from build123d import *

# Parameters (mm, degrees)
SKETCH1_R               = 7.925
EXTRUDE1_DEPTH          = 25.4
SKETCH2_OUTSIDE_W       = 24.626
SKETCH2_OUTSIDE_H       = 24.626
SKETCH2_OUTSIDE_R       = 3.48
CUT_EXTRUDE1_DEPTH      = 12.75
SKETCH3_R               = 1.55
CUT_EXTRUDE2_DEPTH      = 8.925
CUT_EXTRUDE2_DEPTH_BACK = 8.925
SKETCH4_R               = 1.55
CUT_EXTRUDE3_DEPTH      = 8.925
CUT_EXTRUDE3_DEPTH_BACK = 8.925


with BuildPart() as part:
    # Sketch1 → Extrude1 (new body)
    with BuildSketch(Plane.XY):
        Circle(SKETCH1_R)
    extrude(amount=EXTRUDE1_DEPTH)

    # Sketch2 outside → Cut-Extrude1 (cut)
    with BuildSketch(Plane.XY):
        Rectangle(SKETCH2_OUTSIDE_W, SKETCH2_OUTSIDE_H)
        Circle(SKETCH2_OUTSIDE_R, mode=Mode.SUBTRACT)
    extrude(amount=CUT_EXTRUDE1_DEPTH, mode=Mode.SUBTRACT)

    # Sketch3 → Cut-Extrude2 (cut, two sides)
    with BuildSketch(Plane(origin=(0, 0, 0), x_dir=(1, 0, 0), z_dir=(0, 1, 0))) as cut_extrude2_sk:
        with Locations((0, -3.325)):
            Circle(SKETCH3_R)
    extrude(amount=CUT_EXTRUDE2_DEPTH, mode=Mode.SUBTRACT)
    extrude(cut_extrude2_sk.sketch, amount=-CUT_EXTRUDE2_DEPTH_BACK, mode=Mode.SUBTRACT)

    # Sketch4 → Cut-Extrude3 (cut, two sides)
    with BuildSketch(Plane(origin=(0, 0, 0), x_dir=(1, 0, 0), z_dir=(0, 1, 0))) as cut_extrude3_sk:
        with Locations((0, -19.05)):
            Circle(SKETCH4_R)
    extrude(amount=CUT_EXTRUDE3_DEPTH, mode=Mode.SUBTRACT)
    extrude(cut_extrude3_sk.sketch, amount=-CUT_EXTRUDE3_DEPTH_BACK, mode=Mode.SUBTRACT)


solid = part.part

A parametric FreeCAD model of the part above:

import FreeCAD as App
import Part
import Sketcher

doc = App.newDocument("Part")
body = doc.addObject("PartDesign::Body", "Body")

# Sketch on XY plane
sketch1 = body.newObject("Sketcher::SketchObject", "Sketch")
sketch1.AttachmentSupport = (doc.getObject("XY_Plane"), [""])
sketch1.MapMode = "FlatFace"
sketch1.addGeometry(Part.Circle(App.Vector(0, 0, 0), App.Vector(0, 0, 1), 8), False)
sketch1.addConstraint([
    Sketcher.Constraint("Coincident", 0, 3, -1, 1),
    Sketcher.Constraint("Diameter", 0, 15.85),
])
pad1 = body.newObject("PartDesign::Pad", "Pad")
pad1.Profile = sketch1
pad1.Length = 25.4

# Sketch on XY plane
sketch2 = body.newObject("Sketcher::SketchObject", "Sketch001")
sketch2.AttachmentSupport = (doc.getObject("XY_Plane"), [""])
sketch2.MapMode = "FlatFace"
sketch2.addGeometry([
    Part.LineSegment(App.Vector(-12.3, 12.3, 0), App.Vector(-12.3, -12.3, 0)),  # 0
    Part.LineSegment(App.Vector(-12.3, -12.3, 0), App.Vector(12.3, -12.3, 0)),  # 1
    Part.LineSegment(App.Vector(12.3, -12.3, 0), App.Vector(12.3, 12.3, 0)),  # 2
    Part.LineSegment(App.Vector(12.3, 12.3, 0), App.Vector(-12.3, 12.3, 0)),  # 3
    Part.Circle(App.Vector(0, 0, 0), App.Vector(0, 0, 1), 3.5),  # 4
], False)
sketch2.addConstraint([
    Sketcher.Constraint("Coincident", 0, 2, 1, 1),
    Sketcher.Constraint("Coincident", 1, 2, 2, 1),
    Sketcher.Constraint("Coincident", 2, 2, 3, 1),
    Sketcher.Constraint("Coincident", 3, 2, 0, 1),
    Sketcher.Constraint("Vertical", 0),
    Sketcher.Constraint("Horizontal", 1),
    Sketcher.Constraint("Vertical", 2),
    Sketcher.Constraint("Horizontal", 3),
    Sketcher.Constraint("Coincident", 4, 3, -1, 1),
    Sketcher.Constraint("Symmetric", 0, 2, 2, 2, -1, 1),
    Sketcher.Constraint("Equal", 3, 0),
    Sketcher.Constraint("Diameter", 4, 6.96),
    Sketcher.Constraint("DistanceX", 1, 1, 1, 2, 24.626),
])
pocket1 = body.newObject("PartDesign::Pocket", "Pocket")
pocket1.Profile = sketch2
pocket1.Length = 12.75
pocket1.Reversed = True

# Sketch on XZ plane
sketch3 = body.newObject("Sketcher::SketchObject", "Sketch002")
sketch3.AttachmentSupport = (doc.getObject("XZ_Plane"), [""])
sketch3.MapMode = "FlatFace"
sketch3.addGeometry(Part.Circle(App.Vector(0, 3.3, 0), App.Vector(0, 0, 1), 1.6), False)
sketch3.addConstraint([
    Sketcher.Constraint("PointOnObject", 0, 3, -2),
    Sketcher.Constraint("Diameter", 0, 3.1),
    Sketcher.Constraint("DistanceY", -1, 1, 0, 3, 3.325),
])
pocket2 = body.newObject("PartDesign::Pocket", "Pocket001")
pocket2.Profile = sketch3
pocket2.Type = "ThroughAll"
pocket2.Midplane = True

# Sketch on XZ plane
sketch4 = body.newObject("Sketcher::SketchObject", "Sketch003")
sketch4.AttachmentSupport = (doc.getObject("XZ_Plane"), [""])
sketch4.MapMode = "FlatFace"
sketch4.addGeometry(Part.Circle(App.Vector(0, 19.1, 0), App.Vector(0, 0, 1), 1.6), False)
sketch4.addConstraint([
    Sketcher.Constraint("PointOnObject", 0, 3, -2),
    Sketcher.Constraint("Diameter", 0, 3.1),
    Sketcher.Constraint("DistanceY", -1, 1, 0, 3, 19.05),
])
pocket3 = body.newObject("PartDesign::Pocket", "Pocket002")
pocket3.Profile = sketch4
pocket3.Type = "ThroughAll"
pocket3.Midplane = True

doc.recompute()
